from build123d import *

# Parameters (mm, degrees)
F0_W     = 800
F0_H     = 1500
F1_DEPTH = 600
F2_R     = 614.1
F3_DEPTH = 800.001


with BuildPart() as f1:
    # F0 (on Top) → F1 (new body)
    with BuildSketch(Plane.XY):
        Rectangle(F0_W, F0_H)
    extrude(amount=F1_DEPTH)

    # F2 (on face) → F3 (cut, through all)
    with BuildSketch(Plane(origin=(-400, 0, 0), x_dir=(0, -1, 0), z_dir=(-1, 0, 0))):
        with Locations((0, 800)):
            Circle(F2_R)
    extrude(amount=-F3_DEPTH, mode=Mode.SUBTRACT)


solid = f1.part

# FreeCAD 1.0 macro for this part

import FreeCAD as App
import Part
import Sketcher

V = App.Vector


def add_polygon(sketch, points):
    """Adds a closed chain of lines whose ends are joined by coincident constraints."""
    first, n = sketch.GeometryCount, len(points)
    for a, b in zip(points, points[1:] + points[:1]):
        sketch.addGeometry(Part.LineSegment(App.Vector(*a, 0), App.Vector(*b, 0)), False)
    for i in range(n):
        sketch.addConstraint(Sketcher.Constraint("Coincident", first + i, 2, first + (i + 1) % n, 1))

doc = App.newDocument("Part")
body = doc.addObject("PartDesign::Body", "Body")

# Sketch on XY plane
sketch1 = body.newObject("Sketcher::SketchObject", "Sketch")
sketch1.AttachmentSupport = (doc.getObject("XY_Plane"), [""])
sketch1.MapMode = "FlatFace"
add_polygon(sketch1, [(-400, 750), (-400, -750), (400, -750), (400, 750)])  # lines 0-3
sketch1.addConstraint([
    Sketcher.Constraint("Vertical", 0),
    Sketcher.Constraint("Horizontal", 1),
    Sketcher.Constraint("Vertical", 2),
    Sketcher.Constraint("Horizontal", 3),
    Sketcher.Constraint("Symmetric", 0, 2, 2, 2, -1, 1),
    Sketcher.Constraint("DistanceX", 1, 1, 1, 2, 800.0),
    Sketcher.Constraint("DistanceY", 0, 2, 0, 1, 1500.0),
])
pad1 = body.newObject("PartDesign::Pad", "Pad")
pad1.Profile = sketch1
pad1.Length = 600

# Sketch on YZ plane
sketch2 = body.newObject("Sketcher::SketchObject", "Sketch001")
sketch2.AttachmentSupport = (doc.getObject("YZ_Plane"), [""])
sketch2.MapMode = "FlatFace"
sketch2.AttachmentOffset = App.Placement(V(0, 0, -400), App.Rotation())
sketch2.addGeometry(Part.Circle(V(0, 800, 0), V(0, 0, 1), 614.1), False)
sketch2.addConstraint([
    Sketcher.Constraint("PointOnObject", 0, 3, -2),
    Sketcher.Constraint("Diameter", 0, 1228.2),
    Sketcher.Constraint("DistanceY", -1, 1, 0, 3, 800.0),
])
pocket1 = body.newObject("PartDesign::Pocket", "Pocket")
pocket1.Profile = sketch2
pocket1.Type = "ThroughAll"
pocket1.Reversed = True

doc.recompute()
